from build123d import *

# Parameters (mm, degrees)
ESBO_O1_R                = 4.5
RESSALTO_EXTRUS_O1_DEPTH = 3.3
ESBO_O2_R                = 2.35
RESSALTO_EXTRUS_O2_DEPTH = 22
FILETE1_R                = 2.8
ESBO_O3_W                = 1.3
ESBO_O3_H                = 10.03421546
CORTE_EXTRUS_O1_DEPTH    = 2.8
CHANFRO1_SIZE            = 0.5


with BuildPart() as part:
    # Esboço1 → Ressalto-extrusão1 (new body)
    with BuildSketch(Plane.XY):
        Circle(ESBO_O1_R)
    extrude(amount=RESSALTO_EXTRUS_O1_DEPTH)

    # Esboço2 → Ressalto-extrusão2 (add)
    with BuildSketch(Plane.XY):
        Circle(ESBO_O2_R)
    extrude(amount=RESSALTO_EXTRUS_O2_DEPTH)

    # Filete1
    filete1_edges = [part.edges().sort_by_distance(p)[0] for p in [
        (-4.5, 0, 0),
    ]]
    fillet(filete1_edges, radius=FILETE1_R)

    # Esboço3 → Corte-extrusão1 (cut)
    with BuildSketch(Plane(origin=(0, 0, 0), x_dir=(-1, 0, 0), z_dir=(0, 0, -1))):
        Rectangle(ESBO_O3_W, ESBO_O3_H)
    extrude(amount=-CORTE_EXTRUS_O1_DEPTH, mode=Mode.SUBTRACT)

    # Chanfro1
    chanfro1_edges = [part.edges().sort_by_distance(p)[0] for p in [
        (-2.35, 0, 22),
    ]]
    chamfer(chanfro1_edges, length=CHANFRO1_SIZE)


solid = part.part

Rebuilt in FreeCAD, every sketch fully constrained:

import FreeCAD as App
import Part
import Sketcher

V = App.Vector


def edges_at(feature, points):
    """Names of the edges that pass closest to the given points."""
    edges = feature.Shape.Edges
    near = lambda p: min(range(len(edges)), key=lambda i: edges[i].distToShape(Part.Vertex(*p))[0])
    return sorted({f"Edge{near(p) + 1}" for p in points})

doc = App.newDocument("Part")
params = doc.addObject("Spreadsheet::Sheet", "Params")
for row, (alias, value) in enumerate([
    ("sketch1_diameter", "9 mm"),
    ("pad1_length", "3.3 mm"),
    ("sketch2_diameter", "4.7 mm"),
    ("pad2_length", "22 mm"),
    ("fillet_radius", "2.8 mm"),
    ("sketch3_width", "1.3 mm"),
    ("pocket1_length", "2.8 mm"),
    ("chamfer_size", "0.5 mm"),
], start=1):
    params.set(f"A{row}", alias)
    params.set(f"B{row}", "=" + value)
    params.setAlias(f"B{row}", alias)

body = doc.addObject("PartDesign::Body", "Body")

sketch1 = doc.addObject("Sketcher::SketchObject", "Sketch")
body.addObject(sketch1)
sketch1.AttachmentSupport = (doc.XY_Plane, [""])
sketch1.MapMode = "FlatFace"
sketch1.addGeometry(Part.Circle(V(0, 0, 0), V(0, 0, 1), 4.5), False)
sketch1.addConstraint([
    Sketcher.Constraint("Coincident", 0, 3, -1, 1),
    Sketcher.Constraint("Diameter", 0, 9.0),
])
sketch1.setExpression("Constraints[1]", "Params.sketch1_diameter")
pad1 = doc.addObject("PartDesign::Pad", "Pad")
body.addObject(pad1)
pad1.Profile = sketch1
pad1.setExpression("Length", "Params.pad1_length")

sketch2 = doc.addObject("Sketcher::SketchObject", "Sketch001")
body.addObject(sketch2)
sketch2.AttachmentSupport = (doc.XY_Plane, [""])
sketch2.MapMode = "FlatFace"
sketch2.addGeometry(Part.Circle(V(0, 0, 0), V(0, 0, 1), 2.4), False)
sketch2.addConstraint([
    Sketcher.Constraint("Coincident", 0, 3, -1, 1),
    Sketcher.Constraint("Diameter", 0, 4.7),
])
sketch2.setExpression("Constraints[1]", "Params.sketch2_diameter")
pad2 = doc.addObject("PartDesign::Pad", "Pad001")
body.addObject(pad2)
pad2.Profile = sketch2
pad2.setExpression("Length", "Params.pad2_length")
doc.recompute()

fillet = doc.addObject("PartDesign::Fillet", "Fillet")
body.addObject(fillet)
fillet.Base = (pad2, edges_at(pad2, [(-4.5, 0, 0)]))
fillet.setExpression("Radius", "Params.fillet_radius")

sketch3 = doc.addObject("Sketcher::SketchObject", "Sketch002")
body.addObject(sketch3)
sketch3.AttachmentSupport = (doc.XY_Plane, [""])
sketch3.MapMode = "FlatFace"
sketch3.addGeometry([
    Part.LineSegment(V(0.7, 5, 0), V(0.7, -5, 0)),
    Part.LineSegment(V(0.7, -5, 0), V(-0.7, -5, 0)),
    Part.LineSegment(V(-0.7, -5, 0), V(-0.7, 5, 0)),
    Part.LineSegment(V(-0.7, 5, 0), V(0.7, 5, 0)),
], False)
sketch3.addConstraint([
    Sketcher.Constraint("Coincident", 0, 2, 1, 1),
    Sketcher.Constraint("Coincident", 1, 2, 2, 1),
    Sketcher.Constraint("Coincident", 2, 2, 3, 1),
    Sketcher.Constraint("Coincident", 3, 2, 0, 1),
    Sketcher.Constraint("Vertical", 0),
    Sketcher.Constraint("Horizontal", 1),
    Sketcher.Constraint("Vertical", 2),
    Sketcher.Constraint("Horizontal", 3),
    Sketcher.Constraint("Symmetric", 0, 2, 2, 2, -1, 1),
    Sketcher.Constraint("DistanceX", 1, 2, 1, 1, 1.3),
    Sketcher.Constraint("DistanceY", 0, 2, 0, 1, 10.034215),
])
sketch3.setExpression("Constraints[9]", "Params.sketch3_width")
pocket1 = doc.addObject("PartDesign::Pocket", "Pocket")
body.addObject(pocket1)
pocket1.Profile = sketch3
pocket1.setExpression("Length", "Params.pocket1_length")
pocket1.Reversed = True
doc.recompute()

chamfer = doc.addObject("PartDesign::Chamfer", "Chamfer")
body.addObject(chamfer)
chamfer.Base = (pocket1, edges_at(pocket1, [(-2.35, 0, 22)]))
chamfer.setExpression("Size", "Params.chamfer_size")

doc.recompute()
